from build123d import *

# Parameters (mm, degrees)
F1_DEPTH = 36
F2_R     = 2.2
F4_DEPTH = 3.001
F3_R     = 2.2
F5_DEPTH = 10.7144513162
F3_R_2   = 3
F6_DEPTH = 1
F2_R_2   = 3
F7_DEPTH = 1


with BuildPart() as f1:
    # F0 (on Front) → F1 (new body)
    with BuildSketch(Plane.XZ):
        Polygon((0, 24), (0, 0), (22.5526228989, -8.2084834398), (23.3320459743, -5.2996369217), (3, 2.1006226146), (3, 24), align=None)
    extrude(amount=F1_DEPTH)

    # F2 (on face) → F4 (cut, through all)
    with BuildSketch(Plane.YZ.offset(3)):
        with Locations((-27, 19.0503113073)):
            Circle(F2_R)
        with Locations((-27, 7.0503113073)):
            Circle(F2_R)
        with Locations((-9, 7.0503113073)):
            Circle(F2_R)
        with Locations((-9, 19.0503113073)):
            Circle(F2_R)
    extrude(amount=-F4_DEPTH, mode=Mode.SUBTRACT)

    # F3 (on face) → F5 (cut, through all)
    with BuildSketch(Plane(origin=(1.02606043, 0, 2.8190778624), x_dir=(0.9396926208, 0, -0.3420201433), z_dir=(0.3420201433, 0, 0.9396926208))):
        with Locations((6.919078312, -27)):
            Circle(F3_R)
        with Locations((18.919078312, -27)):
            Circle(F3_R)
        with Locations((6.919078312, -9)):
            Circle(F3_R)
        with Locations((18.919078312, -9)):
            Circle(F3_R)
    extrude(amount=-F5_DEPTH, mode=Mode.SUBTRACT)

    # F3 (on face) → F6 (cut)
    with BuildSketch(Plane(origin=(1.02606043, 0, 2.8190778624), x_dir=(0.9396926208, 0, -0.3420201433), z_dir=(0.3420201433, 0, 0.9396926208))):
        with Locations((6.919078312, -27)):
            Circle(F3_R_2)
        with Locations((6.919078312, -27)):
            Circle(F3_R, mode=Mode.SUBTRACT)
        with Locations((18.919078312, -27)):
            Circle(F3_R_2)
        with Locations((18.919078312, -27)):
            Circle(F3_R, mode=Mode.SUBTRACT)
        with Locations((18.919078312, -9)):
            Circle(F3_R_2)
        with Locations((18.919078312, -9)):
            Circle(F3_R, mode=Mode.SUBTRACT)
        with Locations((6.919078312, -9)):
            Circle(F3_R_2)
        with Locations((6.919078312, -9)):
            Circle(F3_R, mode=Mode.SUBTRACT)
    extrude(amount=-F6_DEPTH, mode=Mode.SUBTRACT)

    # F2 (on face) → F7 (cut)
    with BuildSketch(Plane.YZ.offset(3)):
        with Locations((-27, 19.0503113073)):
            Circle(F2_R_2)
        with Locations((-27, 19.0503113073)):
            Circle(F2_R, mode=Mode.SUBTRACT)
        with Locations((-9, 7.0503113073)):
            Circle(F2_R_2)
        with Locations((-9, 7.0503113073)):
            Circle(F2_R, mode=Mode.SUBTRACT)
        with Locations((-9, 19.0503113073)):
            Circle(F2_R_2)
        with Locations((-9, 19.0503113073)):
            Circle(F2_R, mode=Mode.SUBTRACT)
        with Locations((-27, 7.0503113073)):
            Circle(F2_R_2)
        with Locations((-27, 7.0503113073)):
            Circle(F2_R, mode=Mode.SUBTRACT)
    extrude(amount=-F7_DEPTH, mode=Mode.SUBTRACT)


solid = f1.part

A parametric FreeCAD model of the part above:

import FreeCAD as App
import Part
import Sketcher
Q = App.Units.Quantity

doc = App.newDocument("Part")
body = doc.addObject("PartDesign::Body", "Body")

sketch1 = doc.addObject("Sketcher::SketchObject", "Sketch")
body.addObject(sketch1)
sketch1.AttachmentSupport = (doc.XZ_Plane, [""])
sketch1.MapMode = "FlatFace"
sketch1.addGeometry([
    Part.LineSegment(App.Vector(0, 24, 0), App.Vector(0, 0, 0)),
    Part.LineSegment(App.Vector(0, 0, 0), App.Vector(22.6, -8.2, 0)),
    Part.LineSegment(App.Vector(22.6, -8.2, 0), App.Vector(23.3, -5.3, 0)),
    Part.LineSegment(App.Vector(23.3, -5.3, 0), App.Vector(3, 2.1, 0)),
    Part.LineSegment(App.Vector(3, 2.1, 0), App.Vector(3, 24, 0)),
    Part.LineSegment(App.Vector(3, 24, 0), App.Vector(0, 24, 0)),
], False)
sketch1.addConstraint([
    Sketcher.Constraint("Coincident", 0, 2, 1, 1),
    Sketcher.Constraint("Coincident", 1, 2, 2, 1),
    Sketcher.Constraint("Coincident", 2, 2, 3, 1),
    Sketcher.Constraint("Coincident", 3, 2, 4, 1),
    Sketcher.Constraint("Coincident", 4, 2, 5, 1),
    Sketcher.Constraint("Coincident", 5, 2, 0, 1),
    Sketcher.Constraint("Vertical", 0),
    Sketcher.Constraint("Vertical", 4),
    Sketcher.Constraint("Horizontal", 5),
    Sketcher.Constraint("Coincident", 0, 2, -1, 1),
    Sketcher.Constraint("Parallel", 1, 3),
    Sketcher.Constraint("DistanceX", 5, 2, 5, 1, Q("3 mm")),
    Sketcher.Constraint("DistanceY", 0, 2, 0, 1, Q("24 mm")),
    Sketcher.Constraint("Angle", 1, Q("-20 deg")),
    Sketcher.Constraint("Angle", 2, Q("75 deg")),
    Sketcher.Constraint("Distance", 1, Q("24 mm")),
    Sketcher.Constraint("Distance", 2, Q("3.01146 mm")),
])
pad1 = doc.addObject("PartDesign::Pad", "Pad")
body.addObject(pad1)
pad1.Profile = sketch1
pad1.Length = 36

sketch2 = doc.addObject("Sketcher::SketchObject", "Sketch001")
body.addObject(sketch2)
sketch2.AttachmentSupport = (doc.YZ_Plane, [""])
sketch2.MapMode = "FlatFace"
sketch2.AttachmentOffset = App.Placement(App.Vector(0, 0, 3), App.Rotation())
sketch2.addGeometry([
    Part.Circle(App.Vector(-27, 19.1, 0), App.Vector(0, 0, 1), 2.2),
    Part.Circle(App.Vector(-27, 7.1, 0), App.Vector(0, 0, 1), 2.2),
    Part.Circle(App.Vector(-9, 7.1, 0), App.Vector(0, 0, 1), 2.2),
    Part.Circle(App.Vector(-9, 19.1, 0), App.Vector(0, 0, 1), 2.2),
], False)
sketch2.addConstraint([
    Sketcher.Constraint("Equal", 0, 1),
    Sketcher.Constraint("Equal", 1, 2),
    Sketcher.Constraint("Equal", 2, 3),
    Sketcher.Constraint("Horizontal", 1, 3, 2, 3),
    Sketcher.Constraint("Horizontal", 0, 3, 3, 3),
    Sketcher.Constraint("Vertical", 0, 3, 1, 3),
    Sketcher.Constraint("Vertical", 2, 3, 3, 3),
    Sketcher.Constraint("Diameter", 0, Q("4.4 mm")),
    Sketcher.Constraint("DistanceX", 0, 3, -1, 1, Q("27 mm")),
    Sketcher.Constraint("DistanceX", 2, 3, -1, 1, Q("9 mm")),
    Sketcher.Constraint("DistanceY", 1, 3, 0, 3, Q("12 mm")),
    Sketcher.Constraint("DistanceY", -1, 1, 0, 3, Q("19.050311 mm")),
])
pocket1 = doc.addObject("PartDesign::Pocket", "Pocket")
body.addObject(pocket1)
pocket1.Profile = sketch2
pocket1.Type = "ThroughAll"

sketch3 = doc.addObject("Sketcher::SketchObject", "Sketch002")
body.addObject(sketch3)
sketch3.Placement = App.Placement(App.Vector(1.02606, 0, 2.819078), App.Rotation(App.Vector(0.939692621, 0, -0.342020143), App.Vector(0, 1, 0), App.Vector(0.342020143, 0, 0.939692621), "ZXY"))
sketch3.addGeometry([
    Part.Circle(App.Vector(6.9, -27, 0), App.Vector(0, 0, 1), 2.2),
    Part.Circle(App.Vector(18.9, -27, 0), App.Vector(0, 0, 1), 2.2),
    Part.Circle(App.Vector(6.9, -9, 0), App.Vector(0, 0, 1), 2.2),
    Part.Circle(App.Vector(18.9, -9, 0), App.Vector(0, 0, 1), 2.2),
], False)
sketch3.addConstraint([
    Sketcher.Constraint("Equal", 0, 1),
    Sketcher.Constraint("Equal", 1, 2),
    Sketcher.Constraint("Equal", 2, 3),
    Sketcher.Constraint("Horizontal", 0, 3, 1, 3),
    Sketcher.Constraint("Horizontal", 2, 3, 3, 3),
    Sketcher.Constraint("Vertical", 0, 3, 2, 3),
    Sketcher.Constraint("Vertical", 1, 3, 3, 3),
    Sketcher.Constraint("Diameter", 0, Q("4.4 mm")),
    Sketcher.Constraint("DistanceY", 0, 3, -1, 1, Q("27 mm")),
    Sketcher.Constraint("DistanceY", 2, 3, -1, 1, Q("9 mm")),
    Sketcher.Constraint("DistanceX", 0, 3, 1, 3, Q("12 mm")),
    Sketcher.Constraint("DistanceX", -1, 1, 0, 3, Q("6.919078 mm")),
])
pocket2 = doc.addObject("PartDesign::Pocket", "Pocket001")
body.addObject(pocket2)
pocket2.Profile = sketch3
pocket2.Type = "ThroughAll"

sketch4 = doc.addObject("Sketcher::SketchObject", "Sketch003")
body.addObject(sketch4)
sketch4.Placement = App.Placement(App.Vector(1.02606, 0, 2.819078), App.Rotation(App.Vector(0.939692621, 0, -0.342020143), App.Vector(0, 1, 0), App.Vector(0.342020143, 0, 0.939692621), "ZXY"))
sketch4.addGeometry([
    Part.Circle(App.Vector(6.9, -27, 0), App.Vector(0, 0, 1), 3),
    Part.Circle(App.Vector(6.9, -27, 0), App.Vector(0, 0, 1), 2.2),
    Part.Circle(App.Vector(18.9, -27, 0), App.Vector(0, 0, 1), 3),
    Part.Circle(App.Vector(18.9, -27, 0), App.Vector(0, 0, 1), 2.2),
    Part.Circle(App.Vector(18.9, -9, 0), App.Vector(0, 0, 1), 3),
    Part.Circle(App.Vector(18.9, -9, 0), App.Vector(0, 0, 1), 2.2),
    Part.Circle(App.Vector(6.9, -9, 0), App.Vector(0, 0, 1), 3),
    Part.Circle(App.Vector(6.9, -9, 0), App.Vector(0, 0, 1), 2.2),
], False)
sketch4.addConstraint([
    Sketcher.Constraint("Coincident", 1, 3, 0, 3),
    Sketcher.Constraint("Coincident", 3, 3, 2, 3),
    Sketcher.Constraint("Coincident", 5, 3, 4, 3),
    Sketcher.Constraint("Coincident", 7, 3, 6, 3),
    Sketcher.Constraint("Equal", 0, 2),
    Sketcher.Constraint("Equal", 1, 3),
    Sketcher.Constraint("Equal", 2, 4),
    Sketcher.Constraint("Equal", 3, 5),
    Sketcher.Constraint("Equal", 4, 6),
    Sketcher.Constraint("Equal", 5, 7),
    Sketcher.Constraint("Horizontal", 1, 3, 2, 3),
    Sketcher.Constraint("Horizontal", 5, 3, 6, 3),
    Sketcher.Constraint("Vertical", 3, 3, 4, 3),
    Sketcher.Constraint("Vertical", 1, 3, 6, 3),
    Sketcher.Constraint("Diameter", 0, Q("6 mm")),
    Sketcher.Constraint("Diameter", 1, Q("4.4 mm")),
    Sketcher.Constraint("DistanceY", 0, 3, -1, 1, Q("27 mm")),
    Sketcher.Constraint("DistanceY", 4, 3, -1, 1, Q("9 mm")),
    Sketcher.Constraint("DistanceX", 0, 3, 2, 3, Q("12 mm")),
    Sketcher.Constraint("DistanceX", -1, 1, 0, 3, Q("6.919078 mm")),
])
pocket3 = doc.addObject("PartDesign::Pocket", "Pocket002")
body.addObject(pocket3)
pocket3.Profile = sketch4
pocket3.Length = 1

sketch5 = doc.addObject("Sketcher::SketchObject", "Sketch004")
body.addObject(sketch5)
sketch5.AttachmentSupport = (doc.YZ_Plane, [""])
sketch5.MapMode = "FlatFace"
sketch5.AttachmentOffset = App.Placement(App.Vector(0, 0, 3), App.Rotation())
sketch5.addGeometry([
    Part.Circle(App.Vector(-27, 19.1, 0), App.Vector(0, 0, 1), 3),
    Part.Circle(App.Vector(-27, 19.1, 0), App.Vector(0, 0, 1), 2.2),
    Part.Circle(App.Vector(-9, 7.1, 0), App.Vector(0, 0, 1), 3),
    Part.Circle(App.Vector(-9, 7.1, 0), App.Vector(0, 0, 1), 2.2),
    Part.Circle(App.Vector(-9, 19.1, 0), App.Vector(0, 0, 1), 3),
    Part.Circle(App.Vector(-9, 19.1, 0), App.Vector(0, 0, 1), 2.2),
    Part.Circle(App.Vector(-27, 7.1, 0), App.Vector(0, 0, 1), 3),
    Part.Circle(App.Vector(-27, 7.1, 0), App.Vector(0, 0, 1), 2.2),
], False)
sketch5.addConstraint([
    Sketcher.Constraint("Coincident", 1, 3, 0, 3),
    Sketcher.Constraint("Coincident", 3, 3, 2, 3),
    Sketcher.Constraint("Coincident", 5, 3, 4, 3),
    Sketcher.Constraint("Coincident", 7, 3, 6, 3),
    Sketcher.Constraint("Equal", 0, 2),
    Sketcher.Constraint("Equal", 1, 3),
    Sketcher.Constraint("Equal", 2, 4),
    Sketcher.Constraint("Equal", 3, 5),
    Sketcher.Constraint("Equal", 4, 6),
    Sketcher.Constraint("Equal", 5, 7),
    Sketcher.Constraint("Horizontal", 1, 3, 4, 3),
    Sketcher.Constraint("Horizontal", 3, 3, 6, 3),
    Sketcher.Constraint("Vertical", 3, 3, 4, 3),
    Sketcher.Constraint("Vertical", 1, 3, 6, 3),
    Sketcher.Constraint("Diameter", 0, Q("6 mm")),
    Sketcher.Constraint("Diameter", 1, Q("4.4 mm")),
    Sketcher.Constraint("DistanceX", 0, 3, -1, 1, Q("27 mm")),
    Sketcher.Constraint("DistanceX", 2, 3, -1, 1, Q("9 mm")),
    Sketcher.Constraint("DistanceY", 2, 3, 0, 3, Q("12 mm")),
    Sketcher.Constraint("DistanceY", -1, 1, 0, 3, Q("19.050311 mm")),
])
pocket4 = doc.addObject("PartDesign::Pocket", "Pocket003")
body.addObject(pocket4)
pocket4.Profile = sketch5
pocket4.Length = 1

doc.recompute()
